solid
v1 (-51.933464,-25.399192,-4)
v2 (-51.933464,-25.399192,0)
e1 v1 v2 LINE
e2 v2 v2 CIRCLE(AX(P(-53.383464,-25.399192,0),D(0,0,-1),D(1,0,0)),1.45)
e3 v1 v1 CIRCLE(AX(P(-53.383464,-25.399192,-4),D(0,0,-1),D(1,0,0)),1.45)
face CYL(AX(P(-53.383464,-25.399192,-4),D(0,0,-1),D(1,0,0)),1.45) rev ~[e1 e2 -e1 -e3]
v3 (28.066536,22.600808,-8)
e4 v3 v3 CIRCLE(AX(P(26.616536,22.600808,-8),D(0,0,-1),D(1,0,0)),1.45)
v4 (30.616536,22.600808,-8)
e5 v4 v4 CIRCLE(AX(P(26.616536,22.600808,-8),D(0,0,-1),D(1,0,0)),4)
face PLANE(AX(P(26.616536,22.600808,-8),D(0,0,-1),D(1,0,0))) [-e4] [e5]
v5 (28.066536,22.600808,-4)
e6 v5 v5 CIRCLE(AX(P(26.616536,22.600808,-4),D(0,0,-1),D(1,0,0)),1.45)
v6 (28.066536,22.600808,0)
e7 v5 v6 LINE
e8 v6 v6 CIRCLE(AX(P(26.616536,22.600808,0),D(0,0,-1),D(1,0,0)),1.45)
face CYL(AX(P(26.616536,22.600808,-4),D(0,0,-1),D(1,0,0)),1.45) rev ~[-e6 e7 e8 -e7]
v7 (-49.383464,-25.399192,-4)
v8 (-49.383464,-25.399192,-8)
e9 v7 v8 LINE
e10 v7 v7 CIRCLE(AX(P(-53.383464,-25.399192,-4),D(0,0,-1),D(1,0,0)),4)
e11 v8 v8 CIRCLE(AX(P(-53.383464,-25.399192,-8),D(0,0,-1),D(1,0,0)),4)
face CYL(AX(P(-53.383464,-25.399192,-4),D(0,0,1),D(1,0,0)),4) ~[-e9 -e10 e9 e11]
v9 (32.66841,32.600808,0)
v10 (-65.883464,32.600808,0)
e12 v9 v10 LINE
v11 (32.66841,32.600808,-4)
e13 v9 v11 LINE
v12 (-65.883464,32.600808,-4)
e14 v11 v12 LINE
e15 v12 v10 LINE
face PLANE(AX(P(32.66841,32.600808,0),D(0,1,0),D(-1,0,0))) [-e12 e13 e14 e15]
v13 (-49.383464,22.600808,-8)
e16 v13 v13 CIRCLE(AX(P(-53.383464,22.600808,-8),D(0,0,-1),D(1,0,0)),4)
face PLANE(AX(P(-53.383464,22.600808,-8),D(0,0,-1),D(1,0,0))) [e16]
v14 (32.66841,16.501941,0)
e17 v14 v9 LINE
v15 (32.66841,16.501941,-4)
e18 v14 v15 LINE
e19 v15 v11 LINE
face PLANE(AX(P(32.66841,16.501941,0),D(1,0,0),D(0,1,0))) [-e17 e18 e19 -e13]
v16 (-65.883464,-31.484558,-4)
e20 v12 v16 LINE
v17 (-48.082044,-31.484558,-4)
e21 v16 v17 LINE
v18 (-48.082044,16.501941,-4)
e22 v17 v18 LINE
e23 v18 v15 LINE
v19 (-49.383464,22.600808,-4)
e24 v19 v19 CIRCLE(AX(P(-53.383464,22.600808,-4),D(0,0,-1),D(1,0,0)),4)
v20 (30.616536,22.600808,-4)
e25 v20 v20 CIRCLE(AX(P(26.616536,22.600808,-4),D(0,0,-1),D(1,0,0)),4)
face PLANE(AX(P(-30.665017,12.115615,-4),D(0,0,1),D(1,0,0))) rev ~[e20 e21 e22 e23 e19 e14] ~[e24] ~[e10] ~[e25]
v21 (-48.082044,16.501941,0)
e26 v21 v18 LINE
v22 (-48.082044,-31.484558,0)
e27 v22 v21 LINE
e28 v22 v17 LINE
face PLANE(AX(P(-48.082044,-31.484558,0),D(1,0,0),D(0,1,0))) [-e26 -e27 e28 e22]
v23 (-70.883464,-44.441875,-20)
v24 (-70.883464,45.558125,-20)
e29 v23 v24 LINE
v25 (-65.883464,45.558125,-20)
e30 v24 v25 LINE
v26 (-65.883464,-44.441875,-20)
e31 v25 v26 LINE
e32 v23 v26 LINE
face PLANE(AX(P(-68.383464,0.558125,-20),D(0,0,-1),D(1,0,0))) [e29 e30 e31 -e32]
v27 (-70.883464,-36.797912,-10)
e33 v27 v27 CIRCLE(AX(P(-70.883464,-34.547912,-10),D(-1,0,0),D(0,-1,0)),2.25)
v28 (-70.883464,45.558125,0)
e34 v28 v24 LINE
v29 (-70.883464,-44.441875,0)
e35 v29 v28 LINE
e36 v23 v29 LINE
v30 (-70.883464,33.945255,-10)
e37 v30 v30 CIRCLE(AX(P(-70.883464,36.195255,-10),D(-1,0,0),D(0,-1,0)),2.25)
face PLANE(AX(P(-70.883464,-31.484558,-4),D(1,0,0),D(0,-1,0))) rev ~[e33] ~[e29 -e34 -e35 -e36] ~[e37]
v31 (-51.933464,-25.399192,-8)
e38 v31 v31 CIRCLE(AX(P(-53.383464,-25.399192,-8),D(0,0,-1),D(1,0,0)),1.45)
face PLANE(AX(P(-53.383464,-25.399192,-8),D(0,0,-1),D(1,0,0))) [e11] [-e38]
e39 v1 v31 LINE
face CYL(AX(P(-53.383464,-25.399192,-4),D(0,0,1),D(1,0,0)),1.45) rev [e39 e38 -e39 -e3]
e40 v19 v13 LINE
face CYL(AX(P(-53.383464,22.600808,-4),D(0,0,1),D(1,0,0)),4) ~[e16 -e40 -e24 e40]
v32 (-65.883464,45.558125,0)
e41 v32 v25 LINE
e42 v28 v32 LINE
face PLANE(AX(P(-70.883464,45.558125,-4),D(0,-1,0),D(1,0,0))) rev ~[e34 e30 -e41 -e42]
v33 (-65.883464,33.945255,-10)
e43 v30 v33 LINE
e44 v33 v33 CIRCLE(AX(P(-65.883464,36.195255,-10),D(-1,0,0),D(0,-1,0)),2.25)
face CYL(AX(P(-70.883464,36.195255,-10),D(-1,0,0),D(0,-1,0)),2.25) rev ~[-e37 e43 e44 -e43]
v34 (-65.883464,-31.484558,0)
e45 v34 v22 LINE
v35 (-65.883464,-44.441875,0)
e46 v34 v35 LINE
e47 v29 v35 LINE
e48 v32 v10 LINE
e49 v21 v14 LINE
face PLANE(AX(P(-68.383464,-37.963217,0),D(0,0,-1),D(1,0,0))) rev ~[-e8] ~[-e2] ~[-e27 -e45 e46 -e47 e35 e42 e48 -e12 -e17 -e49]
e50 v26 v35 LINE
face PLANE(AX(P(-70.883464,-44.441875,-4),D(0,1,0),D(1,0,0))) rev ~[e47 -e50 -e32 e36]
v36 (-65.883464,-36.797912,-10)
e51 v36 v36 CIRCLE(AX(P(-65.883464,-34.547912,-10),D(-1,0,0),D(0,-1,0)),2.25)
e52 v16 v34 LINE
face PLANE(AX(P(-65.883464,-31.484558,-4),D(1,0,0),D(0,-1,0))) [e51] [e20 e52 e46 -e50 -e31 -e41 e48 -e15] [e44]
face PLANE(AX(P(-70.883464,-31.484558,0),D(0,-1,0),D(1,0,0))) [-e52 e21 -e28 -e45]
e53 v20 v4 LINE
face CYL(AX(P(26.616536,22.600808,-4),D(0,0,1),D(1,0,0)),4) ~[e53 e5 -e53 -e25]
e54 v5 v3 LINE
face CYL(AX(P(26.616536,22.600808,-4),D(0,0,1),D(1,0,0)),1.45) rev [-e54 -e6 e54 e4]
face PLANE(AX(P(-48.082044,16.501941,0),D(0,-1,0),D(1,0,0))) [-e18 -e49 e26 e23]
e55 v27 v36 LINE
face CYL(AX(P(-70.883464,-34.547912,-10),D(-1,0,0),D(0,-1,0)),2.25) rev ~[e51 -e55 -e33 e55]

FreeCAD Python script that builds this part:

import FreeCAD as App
import Part
import Sketcher

V = App.Vector
Q = App.Units.Quantity

doc = App.newDocument("Part")
params = doc.addObject("Spreadsheet::Sheet", "Params")
for row, (alias, value) in enumerate([
    ("pad1_length", "4 mm"),
    ("sketch2_diameter", "8 mm"),
    ("sketch2_diameter2", "2.9 mm"),
    ("pad2_length", "4 mm"),
    ("sketch3_width", "5 mm"),
    ("sketch3_height", "90 mm"),
    ("pad3_length", "16 mm"),
    ("sketch4_diameter", "4.5 mm"),
    ("pocket1_length", "25 mm"),
    ("sketch5_width", "5 mm"),
    ("pad4_length", "4 mm"),
    ("sketch6_diameter", "2.9 mm"),
    ("pocket2_length", "25 mm"),
], start=1):
    params.set(f"A{row}", alias)
    params.set(f"B{row}", "=" + value)
    params.setAlias(f"B{row}", alias)

body = doc.addObject("PartDesign::Body", "Body")

# Sketch on XY plane
sketch1 = body.newObject("Sketcher::SketchObject", "Sketch")
sketch1.AttachmentSupport = (doc.getObject("XY_Plane"), [""])
sketch1.MapMode = "FlatFace"
sketch1.addGeometry(Part.LineSegment(V(32.66841, 32.600808, 0), V(-70.883464, 32.600808, 0)), False)
sketch1.addGeometry(Part.LineSegment(V(-70.883464, 32.600808, 0), V(-70.883464, -31.484558, 0)), False)
sketch1.addGeometry(Part.LineSegment(V(-70.883464, -31.484558, 0), V(-48.082044, -31.484558, 0)), False)
sketch1.addGeometry(Part.LineSegment(V(-48.082044, -31.484558, 0), V(-48.082044, 16.501941, 0)), False)
sketch1.addGeometry(Part.LineSegment(V(-48.082044, 16.501941, 0), V(32.66841, 16.501941, 0)), False)
sketch1.addGeometry(Part.LineSegment(V(32.66841, 16.501941, 0), V(32.66841, 32.600808, 0)), False)
sketch1.addConstraint(Sketcher.Constraint("Coincident", 0, 2, 1, 1))
sketch1.addConstraint(Sketcher.Constraint("Coincident", 1, 2, 2, 1))
sketch1.addConstraint(Sketcher.Constraint("Coincident", 2, 2, 3, 1))
sketch1.addConstraint(Sketcher.Constraint("Coincident", 3, 2, 4, 1))
sketch1.addConstraint(Sketcher.Constraint("Coincident", 4, 2, 5, 1))
sketch1.addConstraint(Sketcher.Constraint("Coincident", 5, 2, 0, 1))
sketch1.addConstraint(Sketcher.Constraint("Horizontal", 0))
sketch1.addConstraint(Sketcher.Constraint("Vertical", 1))
sketch1.addConstraint(Sketcher.Constraint("Horizontal", 2))
sketch1.addConstraint(Sketcher.Constraint("Vertical", 3))
sketch1.addConstraint(Sketcher.Constraint("Horizontal", 4))
sketch1.addConstraint(Sketcher.Constraint("Vertical", 5))
sketch1.addConstraint(Sketcher.Constraint("DistanceY", 3, 1, 3, 2, Q("47.986499 mm")))
sketch1.addConstraint(Sketcher.Constraint("DistanceX", 2, 1, 2, 2, Q("22.80142 mm")))
sketch1.addConstraint(Sketcher.Constraint("DistanceX", 0, 2, 0, 1, Q("103.551873 mm")))
sketch1.addConstraint(Sketcher.Constraint("DistanceY", 1, 2, 1, 1, Q("64.085366 mm")))
sketch1.addConstraint(Sketcher.Constraint("DistanceY", -1, 1, 3, 2, Q("16.501941 mm")))
sketch1.addConstraint(Sketcher.Constraint("DistanceX", -1, 1, 4, 2, Q("32.66841 mm")))
pad1 = body.newObject("PartDesign::Pad", "Pad")
pad1.Profile = sketch1
pad1.setExpression("Length", "Params.pad1_length")
pad1.Reversed = True

# Sketch on XY plane
sketch2 = body.newObject("Sketcher::SketchObject", "Sketch001")
sketch2.AttachmentSupport = (doc.getObject("XY_Plane"), [""])
sketch2.MapMode = "FlatFace"
sketch2.AttachmentOffset = App.Placement(V(0, 0, -4), App.Rotation())
sketch2.addGeometry(Part.Circle(V(-53.383464, -25.399192, 0), V(0, 0, 1), 4), False)
sketch2.addGeometry(Part.Circle(V(-53.383464, -25.399192, 0), V(0, 0, 1), 1.45), False)
sketch2.addGeometry(Part.Circle(V(26.616536, 22.600808, 0), V(0, 0, 1), 4), False)
sketch2.addGeometry(Part.Circle(V(26.616536, 22.600808, 0), V(0, 0, 1), 1.45), False)
sketch2.addGeometry(Part.Circle(V(-53.383464, 22.600808, 0), V(0, 0, 1), 4), False)
sketch2.addConstraint(Sketcher.Constraint("Coincident", 1, 3, 0, 3))
sketch2.addConstraint(Sketcher.Constraint("Coincident", 3, 3, 2, 3))
sketch2.addConstraint(Sketcher.Constraint("Equal", 0, 2))
sketch2.addConstraint(Sketcher.Constraint("Equal", 1, 3))
sketch2.addConstraint(Sketcher.Constraint("Equal", 2, 4))
sketch2.addConstraint(Sketcher.Constraint("Horizontal", 3, 3, 4, 3))
sketch2.addConstraint(Sketcher.Constraint("Vertical", 1, 3, 4, 3))
sketch2.addConstraint(Sketcher.Constraint("Diameter", 0, Q("8 mm")))
sketch2.addConstraint(Sketcher.Constraint("Diameter", 1, Q("2.9 mm")))
sketch2.addConstraint(Sketcher.Constraint("DistanceX", 0, 3, 2, 3, Q("80 mm")))
sketch2.addConstraint(Sketcher.Constraint("DistanceY", 0, 3, 2, 3, Q("48 mm")))
sketch2.addConstraint(Sketcher.Constraint("DistanceX", 0, 3, -1, 1, Q("53.383464 mm")))
sketch2.addConstraint(Sketcher.Constraint("DistanceY", 0, 3, -1, 1, Q("25.399192 mm")))
sketch2.setExpression("Constraints[7]", "Params.sketch2_diameter")
sketch2.setExpression("Constraints[8]", "Params.sketch2_diameter2")
pad2 = body.newObject("PartDesign::Pad", "Pad001")
pad2.Profile = sketch2
pad2.setExpression("Length", "Params.pad2_length")
pad2.Reversed = True

# Sketch on XY plane
sketch3 = body.newObject("Sketcher::SketchObject", "Sketch002")
sketch3.AttachmentSupport = (doc.getObject("XY_Plane"), [""])
sketch3.MapMode = "FlatFace"
sketch3.AttachmentOffset = App.Placement(V(0, 0, -4), App.Rotation())
sketch3.addGeometry(Part.LineSegment(V(-65.883464, -44.441875, 0), V(-70.883464, -44.441875, 0)), False)
sketch3.addGeometry(Part.LineSegment(V(-70.883464, -44.441875, 0), V(-70.883464, 45.558125, 0)), False)
sketch3.addGeometry(Part.LineSegment(V(-70.883464, 45.558125, 0), V(-65.883464, 45.558125, 0)), False)
sketch3.addGeometry(Part.LineSegment(V(-65.883464, 45.558125, 0), V(-65.883464, -44.441875, 0)), False)
sketch3.addConstraint(Sketcher.Constraint("Coincident", 0, 2, 1, 1))
sketch3.addConstraint(Sketcher.Constraint("Coincident", 1, 2, 2, 1))
sketch3.addConstraint(Sketcher.Constraint("Coincident", 2, 2, 3, 1))
sketch3.addConstraint(Sketcher.Constraint("Coincident", 3, 2, 0, 1))
sketch3.addConstraint(Sketcher.Constraint("Horizontal", 0))
sketch3.addConstraint(Sketcher.Constraint("Vertical", 1))
sketch3.addConstraint(Sketcher.Constraint("Horizontal", 2))
sketch3.addConstraint(Sketcher.Constraint("Vertical", 3))
sketch3.addConstraint(Sketcher.Constraint("DistanceX", 0, 2, 0, 1, Q("5 mm")))
sketch3.addConstraint(Sketcher.Constraint("DistanceY", 1, 1, 1, 2, Q("90 mm")))
sketch3.addConstraint(Sketcher.Constraint("DistanceX", 0, 2, -1, 1, Q("70.883464 mm")))
sketch3.addConstraint(Sketcher.Constraint("DistanceY", 0, 2, -1, 1, Q("44.441875 mm")))
sketch3.setExpression("Constraints[8]", "Params.sketch3_width")
sketch3.setExpression("Constraints[9]", "Params.sketch3_height")
pad3 = body.newObject("PartDesign::Pad", "Pad002")
pad3.Profile = sketch3
pad3.setExpression("Length", "Params.pad3_length")
pad3.Reversed = True

# Sketch on YZ plane
sketch4 = body.newObject("Sketcher::SketchObject", "Sketch003")
sketch4.AttachmentSupport = (doc.getObject("YZ_Plane"), [""])
sketch4.MapMode = "FlatFace"
sketch4.AttachmentOffset = App.Placement(V(0, 0, -70.883464), App.Rotation())
sketch4.addGeometry(Part.Circle(V(36.195255, -10, 0), V(0, 0, 1), 2.25), False)
sketch4.addGeometry(Part.Circle(V(-34.547912, -10, 0), V(0, 0, 1), 2.25), False)
sketch4.addConstraint(Sketcher.Constraint("Equal", 0, 1))
sketch4.addConstraint(Sketcher.Constraint("Horizontal", 0, 3, 1, 3))
sketch4.addConstraint(Sketcher.Constraint("Diameter", 0, Q("4.5 mm")))
sketch4.addConstraint(Sketcher.Constraint("DistanceY", 0, 3, -1, 1, Q("10 mm")))
sketch4.addConstraint(Sketcher.Constraint("DistanceX", -1, 1, 0, 3, Q("36.195255 mm")))
sketch4.addConstraint(Sketcher.Constraint("DistanceX", 1, 3, -1, 1, Q("34.547912 mm")))
sketch4.setExpression("Constraints[2]", "Params.sketch4_diameter")
pocket1 = body.newObject("PartDesign::Pocket", "Pocket")
pocket1.Profile = sketch4
pocket1.setExpression("Length", "Params.pocket1_length")
pocket1.Reversed = True

# Sketch on XY plane
sketch5 = body.newObject("Sketcher::SketchObject", "Sketch004")
sketch5.AttachmentSupport = (doc.getObject("XY_Plane"), [""])
sketch5.MapMode = "FlatFace"
sketch5.AttachmentOffset = App.Placement(V(0, 0, -4), App.Rotation())
sketch5.addGeometry(Part.LineSegment(V(-70.883464, -44.441875, 0), V(-70.883464, -31.484558, 0)), False)
sketch5.addGeometry(Part.LineSegment(V(-70.883464, -31.484558, 0), V(-65.883464, -31.484558, 0)), False)
sketch5.addGeometry(Part.LineSegment(V(-65.883464, -31.484558, 0), V(-65.883464, -44.441875, 0)), False)
sketch5.addGeometry(Part.LineSegment(V(-65.883464, -44.441875, 0), V(-70.883464, -44.441875, 0)), False)
sketch5.addGeometry(Part.LineSegment(V(-70.883464, 32.600808, 0), V(-70.883464, 45.558125, 0)), False)
sketch5.addGeometry(Part.LineSegment(V(-70.883464, 45.558125, 0), V(-65.883464, 45.558125, 0)), False)
sketch5.addGeometry(Part.LineSegment(V(-65.883464, 45.558125, 0), V(-65.883464, 32.600808, 0)), False)
sketch5.addGeometry(Part.LineSegment(V(-65.883464, 32.600808, 0), V(-70.883464, 32.600808, 0)), False)
sketch5.addConstraint(Sketcher.Constraint("Coincident", 0, 2, 1, 1))
sketch5.addConstraint(Sketcher.Constraint("Coincident", 1, 2, 2, 1))
sketch5.addConstraint(Sketcher.Constraint("Coincident", 2, 2, 3, 1))
sketch5.addConstraint(Sketcher.Constraint("Coincident", 3, 2, 0, 1))
sketch5.addConstraint(Sketcher.Constraint("Coincident", 4, 2, 5, 1))
sketch5.addConstraint(Sketcher.Constraint("Coincident", 5, 2, 6, 1))
sketch5.addConstraint(Sketcher.Constraint("Coincident", 6, 2, 7, 1))
sketch5.addConstraint(Sketcher.Constraint("Coincident", 7, 2, 4, 1))
sketch5.addConstraint(Sketcher.Constraint("Vertical", 0))
sketch5.addConstraint(Sketcher.Constraint("Horizontal", 1))
sketch5.addConstraint(Sketcher.Constraint("Vertical", 2))
sketch5.addConstraint(Sketcher.Constraint("Horizontal", 3))
sketch5.addConstraint(Sketcher.Constraint("Vertical", 4))
sketch5.addConstraint(Sketcher.Constraint("Horizontal", 5))
sketch5.addConstraint(Sketcher.Constraint("Vertical", 6))
sketch5.addConstraint(Sketcher.Constraint("Horizontal", 7))
sketch5.addConstraint(Sketcher.Constraint("Vertical", 3, 2, 4, 2))
sketch5.addConstraint(Sketcher.Constraint("Vertical", 2, 2, 5, 2))
sketch5.addConstraint(Sketcher.Constraint("Equal", 2, 4))
sketch5.addConstraint(Sketcher.Constraint("DistanceX", 1, 1, 1, 2, Q("5 mm")))
sketch5.addConstraint(Sketcher.Constraint("DistanceY", 3, 2, 4, 2, Q("90 mm")))
sketch5.addConstraint(Sketcher.Constraint("DistanceY", 0, 1, 0, 2, Q("12.957317 mm")))
sketch5.addConstraint(Sketcher.Constraint("DistanceX", 0, 2, -1, 1, Q("70.883464 mm")))
sketch5.addConstraint(Sketcher.Constraint("DistanceY", 0, 2, -1, 1, Q("31.484558 mm")))
sketch5.setExpression("Constraints[19]", "Params.sketch5_width")
pad4 = body.newObject("PartDesign::Pad", "Pad003")
pad4.Profile = sketch5
pad4.setExpression("Length", "Params.pad4_length")

# Sketch on XY plane
sketch6 = body.newObject("Sketcher::SketchObject", "Sketch005")
sketch6.AttachmentSupport = (doc.getObject("XY_Plane"), [""])
sketch6.MapMode = "FlatFace"
sketch6.AttachmentOffset = App.Placement(V(0, 0, -4), App.Rotation())
sketch6.addGeometry(Part.Circle(V(-53.383464, -25.399192, 0), V(0, 0, 1), 1.45), False)
sketch6.addGeometry(Part.Circle(V(26.616536, 22.600808, 0), V(0, 0, 1), 1.45), False)
sketch6.addConstraint(Sketcher.Constraint("Equal", 0, 1))
sketch6.addConstraint(Sketcher.Constraint("Diameter", 0, Q("2.9 mm")))
sketch6.addConstraint(Sketcher.Constraint("DistanceX", 0, 3, 1, 3, Q("80 mm")))
sketch6.addConstraint(Sketcher.Constraint("DistanceY", 0, 3, 1, 3, Q("48 mm")))
sketch6.addConstraint(Sketcher.Constraint("DistanceX", 0, 3, -1, 1, Q("53.383464 mm")))
sketch6.addConstraint(Sketcher.Constraint("DistanceY", 0, 3, -1, 1, Q("25.399192 mm")))
sketch6.setExpression("Constraints[1]", "Params.sketch6_diameter")
pocket2 = body.newObject("PartDesign::Pocket", "Pocket001")
pocket2.Profile = sketch6
pocket2.setExpression("Length", "Params.pocket2_length")
pocket2.Reversed = True

doc.recompute()
